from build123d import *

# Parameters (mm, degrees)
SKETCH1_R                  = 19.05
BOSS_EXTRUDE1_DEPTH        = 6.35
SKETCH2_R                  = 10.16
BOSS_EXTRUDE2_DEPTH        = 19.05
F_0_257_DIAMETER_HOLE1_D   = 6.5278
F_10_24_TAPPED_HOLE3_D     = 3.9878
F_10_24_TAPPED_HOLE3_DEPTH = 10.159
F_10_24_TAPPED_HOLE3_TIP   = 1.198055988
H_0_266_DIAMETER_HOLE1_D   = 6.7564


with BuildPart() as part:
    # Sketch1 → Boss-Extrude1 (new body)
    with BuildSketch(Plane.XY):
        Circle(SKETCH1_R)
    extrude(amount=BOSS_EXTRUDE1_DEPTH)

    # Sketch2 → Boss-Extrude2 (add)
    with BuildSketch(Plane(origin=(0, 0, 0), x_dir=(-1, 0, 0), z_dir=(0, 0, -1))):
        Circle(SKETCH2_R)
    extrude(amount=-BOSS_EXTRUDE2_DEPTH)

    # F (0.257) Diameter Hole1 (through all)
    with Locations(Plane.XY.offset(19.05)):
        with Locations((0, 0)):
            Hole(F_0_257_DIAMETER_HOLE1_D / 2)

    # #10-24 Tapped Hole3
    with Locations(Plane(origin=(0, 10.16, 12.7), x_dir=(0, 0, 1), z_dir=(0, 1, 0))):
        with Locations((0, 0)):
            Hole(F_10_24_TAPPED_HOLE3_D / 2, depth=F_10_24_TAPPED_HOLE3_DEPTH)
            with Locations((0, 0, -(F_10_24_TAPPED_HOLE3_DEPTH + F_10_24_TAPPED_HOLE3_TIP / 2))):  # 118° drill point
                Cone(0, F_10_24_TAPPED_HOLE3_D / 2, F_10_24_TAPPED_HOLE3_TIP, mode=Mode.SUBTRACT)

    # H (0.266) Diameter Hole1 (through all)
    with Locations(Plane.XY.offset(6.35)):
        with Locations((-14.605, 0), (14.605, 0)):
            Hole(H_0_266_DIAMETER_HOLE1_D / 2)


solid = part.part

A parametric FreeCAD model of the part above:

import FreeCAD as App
import Part
import Sketcher

V = App.Vector
Q = App.Units.Quantity

doc = App.newDocument("Part")
body = doc.addObject("PartDesign::Body", "Body")

# Sketch on XY plane
sketch1 = body.newObject("Sketcher::SketchObject", "Sketch")
sketch1.AttachmentSupport = (doc.getObject("XY_Plane"), [""])
sketch1.MapMode = "FlatFace"
sketch1.addGeometry(Part.Circle(V(0, 0, 0), V(0, 0, 1), 19), False)
sketch1.addConstraint([
    Sketcher.Constraint("Coincident", 0, 3, -1, 1),
    Sketcher.Constraint("Diameter", 0, Q("1.5 in")),
])
pad1 = body.newObject("PartDesign::Pad", "Pad")
pad1.Profile = sketch1
pad1.Length = Q("0.25 in")

# Sketch on XY plane
sketch2 = body.newObject("Sketcher::SketchObject", "Sketch001")
sketch2.AttachmentSupport = (doc.getObject("XY_Plane"), [""])
sketch2.MapMode = "FlatFace"
sketch2.addGeometry(Part.Circle(V(0, 0, 0), V(0, 0, 1), 10), False)
sketch2.addConstraint([
    Sketcher.Constraint("Coincident", 0, 3, -1, 1),
    Sketcher.Constraint("Diameter", 0, Q("0.8 in")),
])
pad2 = body.newObject("PartDesign::Pad", "Pad001")
pad2.Profile = sketch2
pad2.Length = Q("0.75 in")

# Sketch on XY plane
sketch3 = body.newObject("Sketcher::SketchObject", "Sketch002")
sketch3.AttachmentSupport = (doc.getObject("XY_Plane"), [""])
sketch3.MapMode = "FlatFace"
sketch3.AttachmentOffset = App.Placement(V(0, 0, 0.75 * 25.4), App.Rotation())
sketch3.addGeometry(Part.Circle(V(0, 0, 0), V(0, 0, 1), 3.3), False)
sketch3.addConstraint([
    Sketcher.Constraint("Coincident", 0, 3, -1, 1),
    Sketcher.Constraint("Diameter", 0, Q("0.257 in")),
])
doc.recompute()
hole = body.newObject("PartDesign::Hole", "Hole")
hole.Profile = sketch3
hole.ThreadType = "None"
hole.Diameter = Q("0.257 in")
hole.DepthType = "ThroughAll"

# Sketch on XZ plane
sketch4 = body.newObject("Sketcher::SketchObject", "Sketch003")
sketch4.AttachmentSupport = (doc.getObject("XZ_Plane"), [""])
sketch4.MapMode = "FlatFace"
sketch4.AttachmentOffset = App.Placement(V(0, 0, -0.4 * 25.4), App.Rotation())
sketch4.addGeometry(Part.Circle(V(0, 12.7, 0), V(0, 0, 1), 2), False)
sketch4.addConstraint([
    Sketcher.Constraint("PointOnObject", 0, 3, -2),
    Sketcher.Constraint("Diameter", 0, Q("0.157 in")),
    Sketcher.Constraint("DistanceY", -1, 1, 0, 3, Q("0.5 in")),
])
doc.recompute()
hole2 = body.newObject("PartDesign::Hole", "Hole001")
hole2.Profile = sketch4
hole2.ThreadType = "None"
hole2.Diameter = Q("0.157 in")
hole2.DepthType = "Dimension"
hole2.Depth = 10.159
hole2.DrillPoint = "Angled"
hole2.DrillPointAngle = 118
hole2.Reversed = True

# Sketch on XY plane
sketch5 = body.newObject("Sketcher::SketchObject", "Sketch004")
sketch5.AttachmentSupport = (doc.getObject("XY_Plane"), [""])
sketch5.MapMode = "FlatFace"
sketch5.AttachmentOffset = App.Placement(V(0, 0, 0.25 * 25.4), App.Rotation())
sketch5.addGeometry([
    Part.Circle(V(-14.6, 0, 0), V(0, 0, 1), 3.4),
    Part.Circle(V(14.6, 0, 0), V(0, 0, 1), 3.4),
], False)
sketch5.addConstraint([
    Sketcher.Constraint("Equal", 0, 1),
    Sketcher.Constraint("Symmetric", 0, 3, 1, 3, -1, 1),
    Sketcher.Constraint("PointOnObject", 0, 3, -1),
    Sketcher.Constraint("Diameter", 0, Q("0.266 in")),
    Sketcher.Constraint("DistanceX", 0, 3, 1, 3, Q("1.15 in")),
])
doc.recompute()
hole3 = body.newObject("PartDesign::Hole", "Hole002")
hole3.Profile = sketch5
hole3.ThreadType = "None"
hole3.Diameter = Q("0.266 in")
hole3.DepthType = "ThroughAll"

doc.recompute()
